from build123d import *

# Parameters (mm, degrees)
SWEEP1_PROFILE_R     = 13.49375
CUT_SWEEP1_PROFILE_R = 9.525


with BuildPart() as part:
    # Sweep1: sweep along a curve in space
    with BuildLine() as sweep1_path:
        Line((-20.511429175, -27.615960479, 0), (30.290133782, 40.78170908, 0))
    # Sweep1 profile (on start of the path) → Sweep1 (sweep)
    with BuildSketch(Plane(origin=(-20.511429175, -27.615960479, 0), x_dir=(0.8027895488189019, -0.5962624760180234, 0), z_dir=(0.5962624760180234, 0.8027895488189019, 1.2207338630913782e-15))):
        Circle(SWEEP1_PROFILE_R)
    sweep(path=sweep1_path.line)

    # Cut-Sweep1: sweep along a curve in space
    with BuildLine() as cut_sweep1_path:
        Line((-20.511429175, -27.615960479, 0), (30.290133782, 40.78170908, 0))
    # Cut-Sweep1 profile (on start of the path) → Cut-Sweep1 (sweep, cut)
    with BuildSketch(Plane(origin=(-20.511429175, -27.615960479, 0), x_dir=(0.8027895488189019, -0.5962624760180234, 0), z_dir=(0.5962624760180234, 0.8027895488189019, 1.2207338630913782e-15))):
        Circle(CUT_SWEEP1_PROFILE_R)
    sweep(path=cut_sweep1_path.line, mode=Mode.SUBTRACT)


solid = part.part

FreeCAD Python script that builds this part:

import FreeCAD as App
import Part
import Sketcher

V = App.Vector
Q = App.Units.Quantity

doc = App.newDocument("Part")
params = doc.addObject("Spreadsheet::Sheet", "Params")
for row, (alias, value) in enumerate([
    ("sketch1_diameter", "1.0625 in"),
    ("sketch3_diameter", "0.75 in"),
], start=1):
    params.set(f"A{row}", alias)
    params.set(f"B{row}", "=" + value)
    params.setAlias(f"B{row}", alias)

body = doc.addObject("PartDesign::Body", "Body")

sketch1 = body.newObject("Sketcher::SketchObject", "Sketch")
sketch1.Placement = App.Placement(V(-20.511429, -27.61596, 0), App.Rotation(V(0.802789549, -0.596262476, 0), V(0, 0, -1), V(0.596262476, 0.802789549, 0), "ZXY"))
sketch1.addGeometry(Part.Circle(V(0, 0, 0), V(0, 0, 1), 13), False)
sketch1.addConstraint([
    Sketcher.Constraint("Coincident", 0, 3, -1, 1),
    Sketcher.Constraint("Diameter", 0, Q("1.0625 in")),
])
sketch1.setExpression("Constraints[1]", "Params.sketch1_diameter")

sketch2 = body.newObject("Sketcher::SketchObject", "Sketch001")
sketch2.Placement = App.Placement(V(0, 0, 0), App.Rotation(V(0.596262476, 0.802789549, 0), V(0, 0, 1), V(0.802789549, -0.596262476, 0), "ZXY"))
sketch2.addGeometry(Part.LineSegment(V(-34, 0, 0), V(51, 0, 0)), False)
sketch2.addConstraint([
    Sketcher.Constraint("Horizontal", 0),
    Sketcher.Constraint("PointOnObject", 0, 1, -1),
    Sketcher.Constraint("DistanceX", -1, 1, 0, 2, Q("2 in")),
    Sketcher.Constraint("DistanceX", 0, 1, 0, 2, Q("85.2 mm")),
])
doc.recompute()

additivepipe = body.newObject("PartDesign::AdditivePipe", "AdditivePipe")
additivepipe.Profile = sketch1
additivepipe.Spine = (sketch2, ["Edge1"])

sketch3 = body.newObject("Sketcher::SketchObject", "Sketch002")
sketch3.Placement = App.Placement(V(-20.511429, -27.61596, 0), App.Rotation(V(0.802789549, -0.596262476, 0), V(0, 0, -1), V(0.596262476, 0.802789549, 0), "ZXY"))
sketch3.addGeometry(Part.Circle(V(0, 0, 0), V(0, 0, 1), 10), False)
sketch3.addConstraint([
    Sketcher.Constraint("Coincident", 0, 3, -1, 1),
    Sketcher.Constraint("Diameter", 0, Q("0.75 in")),
])
sketch3.setExpression("Constraints[1]", "Params.sketch3_diameter")

sketch4 = body.newObject("Sketcher::SketchObject", "Sketch003")
sketch4.Placement = App.Placement(V(0, 0, 0), App.Rotation(V(0.596262476, 0.802789549, 0), V(0, 0, 1), V(0.802789549, -0.596262476, 0), "ZXY"))
sketch4.addGeometry(Part.LineSegment(V(-34, 0, 0), V(51, 0, 0)), False)
sketch4.addConstraint([
    Sketcher.Constraint("Horizontal", 0),
    Sketcher.Constraint("PointOnObject", 0, 1, -1),
    Sketcher.Constraint("DistanceX", -1, 1, 0, 2, Q("2 in")),
    Sketcher.Constraint("DistanceX", 0, 1, 0, 2, Q("85.2 mm")),
])
doc.recompute()

subtractivepipe = body.newObject("PartDesign::SubtractivePipe", "SubtractivePipe")
subtractivepipe.Profile = sketch3
subtractivepipe.Spine = (sketch4, ["Edge1"])

doc.recompute()
